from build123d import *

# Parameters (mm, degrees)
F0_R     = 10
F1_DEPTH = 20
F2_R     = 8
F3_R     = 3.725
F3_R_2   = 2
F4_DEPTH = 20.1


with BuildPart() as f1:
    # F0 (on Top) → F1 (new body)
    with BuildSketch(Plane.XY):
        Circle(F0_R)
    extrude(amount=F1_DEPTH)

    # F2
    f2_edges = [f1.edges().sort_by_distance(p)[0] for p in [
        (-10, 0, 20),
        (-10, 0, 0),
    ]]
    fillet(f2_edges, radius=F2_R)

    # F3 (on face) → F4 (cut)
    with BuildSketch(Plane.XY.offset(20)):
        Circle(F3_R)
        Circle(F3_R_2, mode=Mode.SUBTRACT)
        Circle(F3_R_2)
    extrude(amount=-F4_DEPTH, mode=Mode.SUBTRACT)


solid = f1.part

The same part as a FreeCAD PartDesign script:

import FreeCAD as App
import Part
import Sketcher


def edges_at(feature, points):
    """Names of the edges that pass closest to the given points."""
    edges = feature.Shape.Edges
    near = lambda p: min(range(len(edges)), key=lambda i: edges[i].distToShape(Part.Vertex(*p))[0])
    return sorted({f"Edge{near(p) + 1}" for p in points})

doc = App.newDocument("Part")
body = doc.addObject("PartDesign::Body", "Body")

# Sketch on XY plane
sketch1 = body.newObject("Sketcher::SketchObject", "Sketch")
sketch1.AttachmentSupport = (doc.getObject("XY_Plane"), [""])
sketch1.MapMode = "FlatFace"
sketch1.addGeometry(Part.Circle(App.Vector(0, 0, 0), App.Vector(0, 0, 1), 10), False)
sketch1.addConstraint([
    Sketcher.Constraint("Coincident", 0, 3, -1, 1),
    Sketcher.Constraint("Diameter", 0, 20.0),
])
pad1 = body.newObject("PartDesign::Pad", "Pad")
pad1.Profile = sketch1
pad1.Length = 20
doc.recompute()

fillet = body.newObject("PartDesign::Fillet", "Fillet")
fillet.Base = (pad1, edges_at(pad1, [(-10, 0, 20), (-10, 0, 0)]))
fillet.Radius = 8

# Sketch on XY plane
sketch2 = body.newObject("Sketcher::SketchObject", "Sketch001")
sketch2.AttachmentSupport = (doc.getObject("XY_Plane"), [""])
sketch2.MapMode = "FlatFace"
sketch2.AttachmentOffset = App.Placement(App.Vector(0, 0, 20), App.Rotation())
sketch2.addGeometry(Part.Circle(App.Vector(0, 0, 0), App.Vector(0, 0, 1), 3.7), False)
sketch2.addConstraint([
    Sketcher.Constraint("Coincident", 0, 3, -1, 1),
    Sketcher.Constraint("Diameter", 0, 7.45),
])
pocket1 = body.newObject("PartDesign::Pocket", "Pocket")
pocket1.Profile = sketch2
pocket1.Length = 20.1

doc.recompute()
